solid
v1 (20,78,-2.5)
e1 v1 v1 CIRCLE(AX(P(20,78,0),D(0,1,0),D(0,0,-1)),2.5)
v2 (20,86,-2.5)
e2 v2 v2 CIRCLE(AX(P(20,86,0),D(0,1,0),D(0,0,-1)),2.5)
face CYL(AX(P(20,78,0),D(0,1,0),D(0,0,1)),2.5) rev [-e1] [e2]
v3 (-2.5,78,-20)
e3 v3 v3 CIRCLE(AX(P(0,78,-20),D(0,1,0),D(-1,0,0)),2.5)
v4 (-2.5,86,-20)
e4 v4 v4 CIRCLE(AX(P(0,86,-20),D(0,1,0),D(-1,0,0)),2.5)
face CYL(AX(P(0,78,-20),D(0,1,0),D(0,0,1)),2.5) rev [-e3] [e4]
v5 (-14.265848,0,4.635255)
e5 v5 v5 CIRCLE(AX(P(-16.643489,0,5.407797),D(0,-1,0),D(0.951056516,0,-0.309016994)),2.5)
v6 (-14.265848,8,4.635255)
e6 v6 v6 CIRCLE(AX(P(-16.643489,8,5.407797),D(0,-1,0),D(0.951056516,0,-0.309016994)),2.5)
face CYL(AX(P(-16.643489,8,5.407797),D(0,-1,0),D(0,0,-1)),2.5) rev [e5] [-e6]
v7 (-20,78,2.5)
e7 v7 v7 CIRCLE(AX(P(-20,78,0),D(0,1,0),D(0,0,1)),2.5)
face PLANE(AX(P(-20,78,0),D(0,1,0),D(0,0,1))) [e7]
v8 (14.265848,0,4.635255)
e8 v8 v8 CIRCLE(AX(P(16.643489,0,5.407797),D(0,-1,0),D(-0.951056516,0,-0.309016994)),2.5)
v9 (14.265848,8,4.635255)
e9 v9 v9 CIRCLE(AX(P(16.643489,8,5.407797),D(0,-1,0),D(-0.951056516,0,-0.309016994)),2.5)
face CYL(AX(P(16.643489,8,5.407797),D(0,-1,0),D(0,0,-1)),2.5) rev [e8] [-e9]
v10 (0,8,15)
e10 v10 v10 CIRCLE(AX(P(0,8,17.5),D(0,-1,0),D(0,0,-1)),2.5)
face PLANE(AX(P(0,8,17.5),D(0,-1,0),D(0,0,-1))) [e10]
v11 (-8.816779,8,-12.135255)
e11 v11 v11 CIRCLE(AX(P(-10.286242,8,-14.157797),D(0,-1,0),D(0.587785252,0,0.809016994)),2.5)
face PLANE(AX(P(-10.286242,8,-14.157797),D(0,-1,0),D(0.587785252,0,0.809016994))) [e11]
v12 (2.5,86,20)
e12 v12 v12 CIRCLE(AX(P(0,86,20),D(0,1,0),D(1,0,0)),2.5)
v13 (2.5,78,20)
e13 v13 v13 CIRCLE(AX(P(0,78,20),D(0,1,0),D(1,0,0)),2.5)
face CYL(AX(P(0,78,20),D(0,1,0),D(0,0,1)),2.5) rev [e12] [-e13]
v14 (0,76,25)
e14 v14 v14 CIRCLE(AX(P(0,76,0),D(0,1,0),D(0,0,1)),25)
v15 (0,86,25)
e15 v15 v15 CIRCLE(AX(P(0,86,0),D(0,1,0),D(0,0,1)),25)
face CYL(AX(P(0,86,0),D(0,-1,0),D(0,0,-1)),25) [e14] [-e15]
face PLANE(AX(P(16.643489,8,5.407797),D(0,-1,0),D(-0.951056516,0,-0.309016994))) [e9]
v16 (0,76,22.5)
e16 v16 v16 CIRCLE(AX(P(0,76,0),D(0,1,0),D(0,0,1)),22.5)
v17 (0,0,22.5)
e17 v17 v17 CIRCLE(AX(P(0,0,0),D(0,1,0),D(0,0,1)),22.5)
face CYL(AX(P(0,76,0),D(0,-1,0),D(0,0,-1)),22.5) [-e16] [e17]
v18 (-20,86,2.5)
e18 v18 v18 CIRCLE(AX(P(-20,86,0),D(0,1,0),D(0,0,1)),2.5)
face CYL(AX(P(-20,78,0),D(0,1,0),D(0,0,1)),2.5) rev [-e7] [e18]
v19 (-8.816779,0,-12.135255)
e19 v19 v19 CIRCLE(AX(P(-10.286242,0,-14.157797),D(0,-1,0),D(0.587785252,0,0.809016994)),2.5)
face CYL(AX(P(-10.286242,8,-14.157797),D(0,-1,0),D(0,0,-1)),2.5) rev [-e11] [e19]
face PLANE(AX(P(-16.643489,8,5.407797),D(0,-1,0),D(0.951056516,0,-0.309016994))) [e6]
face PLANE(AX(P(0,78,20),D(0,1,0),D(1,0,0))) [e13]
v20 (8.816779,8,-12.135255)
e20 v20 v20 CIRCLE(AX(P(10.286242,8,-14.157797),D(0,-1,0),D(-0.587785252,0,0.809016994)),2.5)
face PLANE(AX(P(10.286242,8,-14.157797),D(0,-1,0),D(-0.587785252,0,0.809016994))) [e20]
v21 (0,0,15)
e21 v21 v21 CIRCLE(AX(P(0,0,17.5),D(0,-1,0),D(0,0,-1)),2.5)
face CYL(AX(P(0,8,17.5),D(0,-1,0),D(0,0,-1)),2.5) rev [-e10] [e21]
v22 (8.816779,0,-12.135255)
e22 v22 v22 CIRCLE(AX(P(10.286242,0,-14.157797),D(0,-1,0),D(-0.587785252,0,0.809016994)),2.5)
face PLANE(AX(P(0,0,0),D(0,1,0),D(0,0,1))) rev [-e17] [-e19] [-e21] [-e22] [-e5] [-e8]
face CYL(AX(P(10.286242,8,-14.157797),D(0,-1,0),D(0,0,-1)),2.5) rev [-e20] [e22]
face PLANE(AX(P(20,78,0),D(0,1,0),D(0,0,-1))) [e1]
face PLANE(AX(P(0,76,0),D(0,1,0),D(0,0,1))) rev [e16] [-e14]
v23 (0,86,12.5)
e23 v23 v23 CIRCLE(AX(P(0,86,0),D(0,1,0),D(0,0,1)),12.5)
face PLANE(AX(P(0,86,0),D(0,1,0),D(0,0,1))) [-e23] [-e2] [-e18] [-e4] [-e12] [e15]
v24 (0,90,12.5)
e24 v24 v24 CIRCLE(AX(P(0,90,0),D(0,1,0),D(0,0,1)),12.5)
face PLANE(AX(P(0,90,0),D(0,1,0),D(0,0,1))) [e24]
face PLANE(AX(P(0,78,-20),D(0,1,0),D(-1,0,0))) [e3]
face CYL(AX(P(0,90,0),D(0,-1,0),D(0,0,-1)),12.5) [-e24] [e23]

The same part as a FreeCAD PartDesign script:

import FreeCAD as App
import Part
import Sketcher

doc = App.newDocument("Part")
body = doc.addObject("PartDesign::Body", "Body")

# Sketch on XZ plane
sketch1 = doc.addObject("Sketcher::SketchObject", "Sketch")
body.addObject(sketch1)
sketch1.AttachmentSupport = (doc.XZ_Plane, [""])
sketch1.MapMode = "FlatFace"
sketch1.addGeometry(Part.Circle(App.Vector(0, 0, 0), App.Vector(0, 0, 1), 22.5), False)
sketch1.addConstraint([
    Sketcher.Constraint("Coincident", 0, 3, -1, 1),
    Sketcher.Constraint("Diameter", 0, 45.0),
])
pad1 = doc.addObject("PartDesign::Pad", "Pad")
body.addObject(pad1)
pad1.Profile = sketch1
pad1.Length = 76
pad1.Reversed = True

# Sketch on XZ plane
sketch2 = doc.addObject("Sketcher::SketchObject", "Sketch001")
body.addObject(sketch2)
sketch2.AttachmentSupport = (doc.XZ_Plane, [""])
sketch2.MapMode = "FlatFace"
sketch2.AttachmentOffset = App.Placement(App.Vector(0, 0, -76), App.Rotation())
sketch2.addGeometry(Part.Circle(App.Vector(0, 0, 0), App.Vector(0, 0, 1), 25), False)
sketch2.addConstraint([
    Sketcher.Constraint("Coincident", 0, 3, -1, 1),
    Sketcher.Constraint("Diameter", 0, 50.0),
])
pad2 = doc.addObject("PartDesign::Pad", "Pad001")
body.addObject(pad2)
pad2.Profile = sketch2
pad2.Length = 10
pad2.Reversed = True

# Sketch on XZ plane
sketch3 = doc.addObject("Sketcher::SketchObject", "Sketch002")
body.addObject(sketch3)
sketch3.AttachmentSupport = (doc.XZ_Plane, [""])
sketch3.MapMode = "FlatFace"
sketch3.AttachmentOffset = App.Placement(App.Vector(0, 0, -86), App.Rotation())
sketch3.addGeometry(Part.Circle(App.Vector(0, 0, 0), App.Vector(0, 0, 1), 12.5), False)
sketch3.addConstraint([
    Sketcher.Constraint("Coincident", 0, 3, -1, 1),
    Sketcher.Constraint("Diameter", 0, 25.0),
])
pad3 = doc.addObject("PartDesign::Pad", "Pad002")
body.addObject(pad3)
pad3.Profile = sketch3
pad3.Length = 4
pad3.Reversed = True

# Sketch on XZ plane
sketch4 = doc.addObject("Sketcher::SketchObject", "Sketch003")
body.addObject(sketch4)
sketch4.AttachmentSupport = (doc.XZ_Plane, [""])
sketch4.MapMode = "FlatFace"
sketch4.AttachmentOffset = App.Placement(App.Vector(0, 0, -86), App.Rotation())
sketch4.addGeometry(Part.Circle(App.Vector(-20, 0, 0), App.Vector(0, 0, 1), 2.5), False)
sketch4.addConstraint([
    Sketcher.Constraint("PointOnObject", 0, 3, -1),
    Sketcher.Constraint("Diameter", 0, 5.0),
    Sketcher.Constraint("DistanceX", 0, 3, -1, 1, 20.0),
])
pocket1 = doc.addObject("PartDesign::Pocket", "Pocket")
body.addObject(pocket1)
pocket1.Profile = sketch4
pocket1.Length = 8
pocket1.Reversed = True
doc.recompute()

polarpattern = doc.addObject("PartDesign::PolarPattern", "PolarPattern")
body.addObject(polarpattern)
polarpattern.Originals = [pocket1]
polarpattern.Axis = (doc.Y_Axis, [""])
polarpattern.Angle = 360
polarpattern.Occurrences = 4
body.Tip = polarpattern

# Sketch on XZ plane
sketch5 = doc.addObject("Sketcher::SketchObject", "Sketch004")
body.addObject(sketch5)
sketch5.AttachmentSupport = (doc.XZ_Plane, [""])
sketch5.MapMode = "FlatFace"
sketch5.addGeometry(Part.Circle(App.Vector(0, 17.5, 0), App.Vector(0, 0, 1), 2.5), False)
sketch5.addConstraint([
    Sketcher.Constraint("PointOnObject", 0, 3, -2),
    Sketcher.Constraint("Diameter", 0, 5.0),
    Sketcher.Constraint("DistanceY", -1, 1, 0, 3, 17.5),
])
pocket2 = doc.addObject("PartDesign::Pocket", "Pocket001")
body.addObject(pocket2)
pocket2.Profile = sketch5
pocket2.Length = 8
doc.recompute()

polarpattern2 = doc.addObject("PartDesign::PolarPattern", "PolarPattern001")
body.addObject(polarpattern2)
polarpattern2.Originals = [pocket2]
polarpattern2.Axis = (doc.Y_Axis, [""])
polarpattern2.Angle = 360
polarpattern2.Occurrences = 5
body.Tip = polarpattern2

doc.recompute()
